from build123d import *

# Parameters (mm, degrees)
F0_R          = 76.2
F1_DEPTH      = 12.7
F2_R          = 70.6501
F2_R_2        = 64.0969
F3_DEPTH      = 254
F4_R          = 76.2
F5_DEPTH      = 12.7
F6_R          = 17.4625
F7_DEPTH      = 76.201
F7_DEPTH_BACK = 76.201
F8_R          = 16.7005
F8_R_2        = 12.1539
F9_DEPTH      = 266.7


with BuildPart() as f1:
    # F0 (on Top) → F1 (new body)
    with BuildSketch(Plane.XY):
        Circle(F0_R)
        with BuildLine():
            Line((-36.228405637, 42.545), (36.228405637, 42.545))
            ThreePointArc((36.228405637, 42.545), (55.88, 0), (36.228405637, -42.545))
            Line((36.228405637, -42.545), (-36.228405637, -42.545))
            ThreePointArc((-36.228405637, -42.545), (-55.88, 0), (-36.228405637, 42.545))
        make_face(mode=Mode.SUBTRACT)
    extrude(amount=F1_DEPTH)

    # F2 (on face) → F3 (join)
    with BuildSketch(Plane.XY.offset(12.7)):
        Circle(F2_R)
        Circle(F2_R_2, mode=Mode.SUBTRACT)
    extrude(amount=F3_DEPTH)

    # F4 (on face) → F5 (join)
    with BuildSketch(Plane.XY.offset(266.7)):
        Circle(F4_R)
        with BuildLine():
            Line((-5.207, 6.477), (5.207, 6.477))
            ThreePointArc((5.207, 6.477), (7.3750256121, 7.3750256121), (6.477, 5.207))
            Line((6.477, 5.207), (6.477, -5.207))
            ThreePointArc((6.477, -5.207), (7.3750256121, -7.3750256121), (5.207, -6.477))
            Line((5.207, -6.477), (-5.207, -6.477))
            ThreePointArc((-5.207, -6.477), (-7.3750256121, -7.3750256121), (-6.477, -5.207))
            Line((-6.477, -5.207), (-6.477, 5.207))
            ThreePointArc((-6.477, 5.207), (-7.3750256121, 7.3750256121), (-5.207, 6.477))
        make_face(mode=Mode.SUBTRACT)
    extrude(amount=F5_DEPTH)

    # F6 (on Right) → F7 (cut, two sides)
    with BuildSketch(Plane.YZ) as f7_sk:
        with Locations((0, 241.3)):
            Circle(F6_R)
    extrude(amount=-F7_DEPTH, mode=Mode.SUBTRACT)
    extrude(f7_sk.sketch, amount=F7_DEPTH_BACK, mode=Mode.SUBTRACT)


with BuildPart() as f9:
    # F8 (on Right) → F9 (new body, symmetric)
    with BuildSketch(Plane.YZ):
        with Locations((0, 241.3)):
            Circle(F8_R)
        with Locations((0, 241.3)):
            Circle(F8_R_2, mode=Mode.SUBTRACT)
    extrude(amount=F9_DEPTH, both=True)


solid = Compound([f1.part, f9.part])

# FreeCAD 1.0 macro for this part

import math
import FreeCAD as App
import Part
import Sketcher
from FreeCAD import Vector
Q = App.Units.Quantity

doc = App.newDocument("Part")
body = doc.addObject("PartDesign::Body", "Body")

# Sketch on XY plane
sketch1 = doc.addObject("Sketcher::SketchObject", "Sketch")
body.addObject(sketch1)
sketch1.AttachmentSupport = (doc.XY_Plane, [""])
sketch1.MapMode = "FlatFace"
sketch1.addGeometry(Part.Circle(Vector(0, 0, 0), Vector(0, 0, 1), 76), False)
sketch1.addGeometry(Part.ArcOfCircle(Part.Circle(Vector(0, 0, 0), Vector(0, 0, 1), 56), math.radians(130), math.radians(230)), False)
sketch1.addGeometry(Part.LineSegment(Vector(-36, 43, 0), Vector(36, 43, 0)), False)
sketch1.addGeometry(Part.ArcOfCircle(Part.Circle(Vector(0, 0, 0), Vector(0, 0, 1), 56), math.radians(-50), math.radians(50)), False)
sketch1.addGeometry(Part.LineSegment(Vector(36, -43, 0), Vector(-36, -43, 0)), False)
sketch1.addConstraint(Sketcher.Constraint("Coincident", 1, 1, 2, 1))
sketch1.addConstraint(Sketcher.Constraint("Coincident", 2, 2, 3, 2))
sketch1.addConstraint(Sketcher.Constraint("Coincident", 3, 1, 4, 1))
sketch1.addConstraint(Sketcher.Constraint("Coincident", 4, 2, 1, 2))
sketch1.addConstraint(Sketcher.Constraint("Horizontal", 2))
sketch1.addConstraint(Sketcher.Constraint("Horizontal", 4))
sketch1.addConstraint(Sketcher.Constraint("Coincident", 0, 3, -1, 1))
sketch1.addConstraint(Sketcher.Constraint("Coincident", 1, 3, -1, 1))
sketch1.addConstraint(Sketcher.Constraint("Coincident", 3, 3, -1, 1))
sketch1.addConstraint(Sketcher.Constraint("Equal", 1, 3))
sketch1.addConstraint(Sketcher.Constraint("Vertical", 2, 2, 3, 1))
sketch1.addConstraint(Sketcher.Constraint("Diameter", 0, Q("6 in")))
sketch1.addConstraint(Sketcher.Constraint("Radius", 1, Q("2.2 in")))
sketch1.addConstraint(Sketcher.Constraint("DistanceY", 3, 1, 2, 2, Q("3.35 in")))
pad1 = doc.addObject("PartDesign::Pad", "Pad")
body.addObject(pad1)
pad1.Profile = sketch1
pad1.Length = Q("0.5 in")

# Sketch on XY plane
sketch2 = doc.addObject("Sketcher::SketchObject", "Sketch001")
body.addObject(sketch2)
sketch2.AttachmentSupport = (doc.XY_Plane, [""])
sketch2.MapMode = "FlatFace"
sketch2.AttachmentOffset = App.Placement(Vector(0, 0, 0.5 * 25.4), App.Rotation())
sketch2.addGeometry(Part.Circle(Vector(0, 0, 0), Vector(0, 0, 1), 71), False)
sketch2.addGeometry(Part.Circle(Vector(0, 0, 0), Vector(0, 0, 1), 64), False)
sketch2.addConstraint(Sketcher.Constraint("Coincident", 0, 3, -1, 1))
sketch2.addConstraint(Sketcher.Constraint("Coincident", 1, 3, -1, 1))
sketch2.addConstraint(Sketcher.Constraint("Diameter", 0, Q("5.563 in")))
sketch2.addConstraint(Sketcher.Constraint("Diameter", 1, Q("5.047 in")))
pad2 = doc.addObject("PartDesign::Pad", "Pad001")
body.addObject(pad2)
pad2.Profile = sketch2
pad2.Length = Q("10 in")

# Sketch on XY plane
sketch3 = doc.addObject("Sketcher::SketchObject", "Sketch002")
body.addObject(sketch3)
sketch3.AttachmentSupport = (doc.XY_Plane, [""])
sketch3.MapMode = "FlatFace"
sketch3.AttachmentOffset = App.Placement(Vector(0, 0, 10.5 * 25.4), App.Rotation())
sketch3.addGeometry(Part.Circle(Vector(0, 0, 0), Vector(0, 0, 1), 76.2), False)
sketch3.addGeometry(Part.ArcOfCircle(Part.Circle(Vector(-6.5, 6.5, 0), Vector(0, 0, 1), 1.3), math.radians(0), math.radians(270)), False)
sketch3.addGeometry(Part.LineSegment(Vector(-5.2, 6.5, 0), Vector(5.2, 6.5, 0)), False)
sketch3.addGeometry(Part.ArcOfCircle(Part.Circle(Vector(6.5, 6.5, 0), Vector(0, 0, 1), 1.3), math.radians(-90), math.radians(180)), False)
sketch3.addGeometry(Part.LineSegment(Vector(6.5, 5.2, 0), Vector(6.5, -5.2, 0)), False)
sketch3.addGeometry(Part.ArcOfCircle(Part.Circle(Vector(6.5, -6.5, 0), Vector(0, 0, 1), 1.3), math.radians(180), math.radians(450)), False)
sketch3.addGeometry(Part.LineSegment(Vector(5.2, -6.5, 0), Vector(-5.2, -6.5, 0)), False)
sketch3.addGeometry(Part.ArcOfCircle(Part.Circle(Vector(-6.5, -6.5, 0), Vector(0, 0, 1), 1.3), math.radians(90), math.radians(360)), False)
sketch3.addGeometry(Part.LineSegment(Vector(-6.5, -5.2, 0), Vector(-6.5, 5.2, 0)), False)
sketch3.addConstraint(Sketcher.Constraint("Coincident", 1, 1, 2, 1))
sketch3.addConstraint(Sketcher.Constraint("Coincident", 2, 2, 3, 2))
sketch3.addConstraint(Sketcher.Constraint("Coincident", 3, 1, 4, 1))
sketch3.addConstraint(Sketcher.Constraint("Coincident", 4, 2, 5, 2))
sketch3.addConstraint(Sketcher.Constraint("Coincident", 5, 1, 6, 1))
sketch3.addConstraint(Sketcher.Constraint("Coincident", 6, 2, 7, 2))
sketch3.addConstraint(Sketcher.Constraint("Coincident", 7, 1, 8, 1))
sketch3.addConstraint(Sketcher.Constraint("Coincident", 8, 2, 1, 2))
sketch3.addConstraint(Sketcher.Constraint("Horizontal", 2))
sketch3.addConstraint(Sketcher.Constraint("Vertical", 4))
sketch3.addConstraint(Sketcher.Constraint("Horizontal", 6))
sketch3.addConstraint(Sketcher.Constraint("Vertical", 8))
sketch3.addConstraint(Sketcher.Constraint("Coincident", 0, 3, -1, 1))
sketch3.addConstraint(Sketcher.Constraint("Equal", 1, 3))
sketch3.addConstraint(Sketcher.Constraint("Equal", 3, 5))
sketch3.addConstraint(Sketcher.Constraint("Equal", 5, 7))
sketch3.addConstraint(Sketcher.Constraint("Symmetric", 1, 3, 5, 3, -1, 1))
sketch3.addConstraint(Sketcher.Constraint("Symmetric", 3, 3, 7, 3, -1, 1))
sketch3.addConstraint(Sketcher.Constraint("Symmetric", 1, 3, 3, 3, -2))
sketch3.addConstraint(Sketcher.Constraint("Horizontal", 3, 3, 1, 1))
sketch3.addConstraint(Sketcher.Constraint("Horizontal", 7, 3, 5, 1))
sketch3.addConstraint(Sketcher.Constraint("Vertical", 5, 3, 3, 1))
sketch3.addConstraint(Sketcher.Constraint("Vertical", 1, 3, 7, 1))
sketch3.addConstraint(Sketcher.Constraint("Equal", 6, 4))
sketch3.addConstraint(Sketcher.Constraint("Diameter", 0, Q("6 in")))
sketch3.addConstraint(Sketcher.Constraint("Radius", 1, Q("0.05 in")))
sketch3.addConstraint(Sketcher.Constraint("DistanceX", 2, 1, 2, 2, Q("0.41 in")))
pad3 = doc.addObject("PartDesign::Pad", "Pad002")
body.addObject(pad3)
pad3.Profile = sketch3
pad3.Length = Q("0.5 in")

# Sketch on YZ plane
sketch4 = doc.addObject("Sketcher::SketchObject", "Sketch003")
body.addObject(sketch4)
sketch4.AttachmentSupport = (doc.YZ_Plane, [""])
sketch4.MapMode = "FlatFace"
sketch4.addGeometry(Part.Circle(Vector(0, 241, 0), Vector(0, 0, 1), 17), False)
sketch4.addConstraint(Sketcher.Constraint("PointOnObject", 0, 3, -2))
sketch4.addConstraint(Sketcher.Constraint("Diameter", 0, Q("1.375 in")))
sketch4.addConstraint(Sketcher.Constraint("DistanceY", -1, 1, 0, 3, Q("9.5 in")))
pocket1 = doc.addObject("PartDesign::Pocket", "Pocket")
body.addObject(pocket1)
pocket1.Profile = sketch4
pocket1.Type = "ThroughAll"
pocket1.Midplane = True
body2 = doc.addObject("PartDesign::Body", "Body001")

# Sketch on YZ plane
sketch5 = doc.addObject("Sketcher::SketchObject", "Sketch004")
body2.addObject(sketch5)
sketch5.AttachmentSupport = (doc.getObject("YZ_Plane001"), [""])
sketch5.MapMode = "FlatFace"
sketch5.addGeometry(Part.Circle(Vector(0, 241, 0), Vector(0, 0, 1), 17), False)
sketch5.addGeometry(Part.Circle(Vector(0, 241, 0), Vector(0, 0, 1), 12), False)
sketch5.addConstraint(Sketcher.Constraint("Coincident", 1, 3, 0, 3))
sketch5.addConstraint(Sketcher.Constraint("PointOnObject", 0, 3, -2))
sketch5.addConstraint(Sketcher.Constraint("Diameter", 0, Q("1.315 in")))
sketch5.addConstraint(Sketcher.Constraint("Diameter", 1, Q("0.957 in")))
sketch5.addConstraint(Sketcher.Constraint("DistanceY", -1, 1, 0, 3, Q("9.5 in")))
pad4 = doc.addObject("PartDesign::Pad", "Pad003")
body2.addObject(pad4)
pad4.Profile = sketch5
pad4.Length = Q("21 in")
pad4.Midplane = True

doc.recompute()
